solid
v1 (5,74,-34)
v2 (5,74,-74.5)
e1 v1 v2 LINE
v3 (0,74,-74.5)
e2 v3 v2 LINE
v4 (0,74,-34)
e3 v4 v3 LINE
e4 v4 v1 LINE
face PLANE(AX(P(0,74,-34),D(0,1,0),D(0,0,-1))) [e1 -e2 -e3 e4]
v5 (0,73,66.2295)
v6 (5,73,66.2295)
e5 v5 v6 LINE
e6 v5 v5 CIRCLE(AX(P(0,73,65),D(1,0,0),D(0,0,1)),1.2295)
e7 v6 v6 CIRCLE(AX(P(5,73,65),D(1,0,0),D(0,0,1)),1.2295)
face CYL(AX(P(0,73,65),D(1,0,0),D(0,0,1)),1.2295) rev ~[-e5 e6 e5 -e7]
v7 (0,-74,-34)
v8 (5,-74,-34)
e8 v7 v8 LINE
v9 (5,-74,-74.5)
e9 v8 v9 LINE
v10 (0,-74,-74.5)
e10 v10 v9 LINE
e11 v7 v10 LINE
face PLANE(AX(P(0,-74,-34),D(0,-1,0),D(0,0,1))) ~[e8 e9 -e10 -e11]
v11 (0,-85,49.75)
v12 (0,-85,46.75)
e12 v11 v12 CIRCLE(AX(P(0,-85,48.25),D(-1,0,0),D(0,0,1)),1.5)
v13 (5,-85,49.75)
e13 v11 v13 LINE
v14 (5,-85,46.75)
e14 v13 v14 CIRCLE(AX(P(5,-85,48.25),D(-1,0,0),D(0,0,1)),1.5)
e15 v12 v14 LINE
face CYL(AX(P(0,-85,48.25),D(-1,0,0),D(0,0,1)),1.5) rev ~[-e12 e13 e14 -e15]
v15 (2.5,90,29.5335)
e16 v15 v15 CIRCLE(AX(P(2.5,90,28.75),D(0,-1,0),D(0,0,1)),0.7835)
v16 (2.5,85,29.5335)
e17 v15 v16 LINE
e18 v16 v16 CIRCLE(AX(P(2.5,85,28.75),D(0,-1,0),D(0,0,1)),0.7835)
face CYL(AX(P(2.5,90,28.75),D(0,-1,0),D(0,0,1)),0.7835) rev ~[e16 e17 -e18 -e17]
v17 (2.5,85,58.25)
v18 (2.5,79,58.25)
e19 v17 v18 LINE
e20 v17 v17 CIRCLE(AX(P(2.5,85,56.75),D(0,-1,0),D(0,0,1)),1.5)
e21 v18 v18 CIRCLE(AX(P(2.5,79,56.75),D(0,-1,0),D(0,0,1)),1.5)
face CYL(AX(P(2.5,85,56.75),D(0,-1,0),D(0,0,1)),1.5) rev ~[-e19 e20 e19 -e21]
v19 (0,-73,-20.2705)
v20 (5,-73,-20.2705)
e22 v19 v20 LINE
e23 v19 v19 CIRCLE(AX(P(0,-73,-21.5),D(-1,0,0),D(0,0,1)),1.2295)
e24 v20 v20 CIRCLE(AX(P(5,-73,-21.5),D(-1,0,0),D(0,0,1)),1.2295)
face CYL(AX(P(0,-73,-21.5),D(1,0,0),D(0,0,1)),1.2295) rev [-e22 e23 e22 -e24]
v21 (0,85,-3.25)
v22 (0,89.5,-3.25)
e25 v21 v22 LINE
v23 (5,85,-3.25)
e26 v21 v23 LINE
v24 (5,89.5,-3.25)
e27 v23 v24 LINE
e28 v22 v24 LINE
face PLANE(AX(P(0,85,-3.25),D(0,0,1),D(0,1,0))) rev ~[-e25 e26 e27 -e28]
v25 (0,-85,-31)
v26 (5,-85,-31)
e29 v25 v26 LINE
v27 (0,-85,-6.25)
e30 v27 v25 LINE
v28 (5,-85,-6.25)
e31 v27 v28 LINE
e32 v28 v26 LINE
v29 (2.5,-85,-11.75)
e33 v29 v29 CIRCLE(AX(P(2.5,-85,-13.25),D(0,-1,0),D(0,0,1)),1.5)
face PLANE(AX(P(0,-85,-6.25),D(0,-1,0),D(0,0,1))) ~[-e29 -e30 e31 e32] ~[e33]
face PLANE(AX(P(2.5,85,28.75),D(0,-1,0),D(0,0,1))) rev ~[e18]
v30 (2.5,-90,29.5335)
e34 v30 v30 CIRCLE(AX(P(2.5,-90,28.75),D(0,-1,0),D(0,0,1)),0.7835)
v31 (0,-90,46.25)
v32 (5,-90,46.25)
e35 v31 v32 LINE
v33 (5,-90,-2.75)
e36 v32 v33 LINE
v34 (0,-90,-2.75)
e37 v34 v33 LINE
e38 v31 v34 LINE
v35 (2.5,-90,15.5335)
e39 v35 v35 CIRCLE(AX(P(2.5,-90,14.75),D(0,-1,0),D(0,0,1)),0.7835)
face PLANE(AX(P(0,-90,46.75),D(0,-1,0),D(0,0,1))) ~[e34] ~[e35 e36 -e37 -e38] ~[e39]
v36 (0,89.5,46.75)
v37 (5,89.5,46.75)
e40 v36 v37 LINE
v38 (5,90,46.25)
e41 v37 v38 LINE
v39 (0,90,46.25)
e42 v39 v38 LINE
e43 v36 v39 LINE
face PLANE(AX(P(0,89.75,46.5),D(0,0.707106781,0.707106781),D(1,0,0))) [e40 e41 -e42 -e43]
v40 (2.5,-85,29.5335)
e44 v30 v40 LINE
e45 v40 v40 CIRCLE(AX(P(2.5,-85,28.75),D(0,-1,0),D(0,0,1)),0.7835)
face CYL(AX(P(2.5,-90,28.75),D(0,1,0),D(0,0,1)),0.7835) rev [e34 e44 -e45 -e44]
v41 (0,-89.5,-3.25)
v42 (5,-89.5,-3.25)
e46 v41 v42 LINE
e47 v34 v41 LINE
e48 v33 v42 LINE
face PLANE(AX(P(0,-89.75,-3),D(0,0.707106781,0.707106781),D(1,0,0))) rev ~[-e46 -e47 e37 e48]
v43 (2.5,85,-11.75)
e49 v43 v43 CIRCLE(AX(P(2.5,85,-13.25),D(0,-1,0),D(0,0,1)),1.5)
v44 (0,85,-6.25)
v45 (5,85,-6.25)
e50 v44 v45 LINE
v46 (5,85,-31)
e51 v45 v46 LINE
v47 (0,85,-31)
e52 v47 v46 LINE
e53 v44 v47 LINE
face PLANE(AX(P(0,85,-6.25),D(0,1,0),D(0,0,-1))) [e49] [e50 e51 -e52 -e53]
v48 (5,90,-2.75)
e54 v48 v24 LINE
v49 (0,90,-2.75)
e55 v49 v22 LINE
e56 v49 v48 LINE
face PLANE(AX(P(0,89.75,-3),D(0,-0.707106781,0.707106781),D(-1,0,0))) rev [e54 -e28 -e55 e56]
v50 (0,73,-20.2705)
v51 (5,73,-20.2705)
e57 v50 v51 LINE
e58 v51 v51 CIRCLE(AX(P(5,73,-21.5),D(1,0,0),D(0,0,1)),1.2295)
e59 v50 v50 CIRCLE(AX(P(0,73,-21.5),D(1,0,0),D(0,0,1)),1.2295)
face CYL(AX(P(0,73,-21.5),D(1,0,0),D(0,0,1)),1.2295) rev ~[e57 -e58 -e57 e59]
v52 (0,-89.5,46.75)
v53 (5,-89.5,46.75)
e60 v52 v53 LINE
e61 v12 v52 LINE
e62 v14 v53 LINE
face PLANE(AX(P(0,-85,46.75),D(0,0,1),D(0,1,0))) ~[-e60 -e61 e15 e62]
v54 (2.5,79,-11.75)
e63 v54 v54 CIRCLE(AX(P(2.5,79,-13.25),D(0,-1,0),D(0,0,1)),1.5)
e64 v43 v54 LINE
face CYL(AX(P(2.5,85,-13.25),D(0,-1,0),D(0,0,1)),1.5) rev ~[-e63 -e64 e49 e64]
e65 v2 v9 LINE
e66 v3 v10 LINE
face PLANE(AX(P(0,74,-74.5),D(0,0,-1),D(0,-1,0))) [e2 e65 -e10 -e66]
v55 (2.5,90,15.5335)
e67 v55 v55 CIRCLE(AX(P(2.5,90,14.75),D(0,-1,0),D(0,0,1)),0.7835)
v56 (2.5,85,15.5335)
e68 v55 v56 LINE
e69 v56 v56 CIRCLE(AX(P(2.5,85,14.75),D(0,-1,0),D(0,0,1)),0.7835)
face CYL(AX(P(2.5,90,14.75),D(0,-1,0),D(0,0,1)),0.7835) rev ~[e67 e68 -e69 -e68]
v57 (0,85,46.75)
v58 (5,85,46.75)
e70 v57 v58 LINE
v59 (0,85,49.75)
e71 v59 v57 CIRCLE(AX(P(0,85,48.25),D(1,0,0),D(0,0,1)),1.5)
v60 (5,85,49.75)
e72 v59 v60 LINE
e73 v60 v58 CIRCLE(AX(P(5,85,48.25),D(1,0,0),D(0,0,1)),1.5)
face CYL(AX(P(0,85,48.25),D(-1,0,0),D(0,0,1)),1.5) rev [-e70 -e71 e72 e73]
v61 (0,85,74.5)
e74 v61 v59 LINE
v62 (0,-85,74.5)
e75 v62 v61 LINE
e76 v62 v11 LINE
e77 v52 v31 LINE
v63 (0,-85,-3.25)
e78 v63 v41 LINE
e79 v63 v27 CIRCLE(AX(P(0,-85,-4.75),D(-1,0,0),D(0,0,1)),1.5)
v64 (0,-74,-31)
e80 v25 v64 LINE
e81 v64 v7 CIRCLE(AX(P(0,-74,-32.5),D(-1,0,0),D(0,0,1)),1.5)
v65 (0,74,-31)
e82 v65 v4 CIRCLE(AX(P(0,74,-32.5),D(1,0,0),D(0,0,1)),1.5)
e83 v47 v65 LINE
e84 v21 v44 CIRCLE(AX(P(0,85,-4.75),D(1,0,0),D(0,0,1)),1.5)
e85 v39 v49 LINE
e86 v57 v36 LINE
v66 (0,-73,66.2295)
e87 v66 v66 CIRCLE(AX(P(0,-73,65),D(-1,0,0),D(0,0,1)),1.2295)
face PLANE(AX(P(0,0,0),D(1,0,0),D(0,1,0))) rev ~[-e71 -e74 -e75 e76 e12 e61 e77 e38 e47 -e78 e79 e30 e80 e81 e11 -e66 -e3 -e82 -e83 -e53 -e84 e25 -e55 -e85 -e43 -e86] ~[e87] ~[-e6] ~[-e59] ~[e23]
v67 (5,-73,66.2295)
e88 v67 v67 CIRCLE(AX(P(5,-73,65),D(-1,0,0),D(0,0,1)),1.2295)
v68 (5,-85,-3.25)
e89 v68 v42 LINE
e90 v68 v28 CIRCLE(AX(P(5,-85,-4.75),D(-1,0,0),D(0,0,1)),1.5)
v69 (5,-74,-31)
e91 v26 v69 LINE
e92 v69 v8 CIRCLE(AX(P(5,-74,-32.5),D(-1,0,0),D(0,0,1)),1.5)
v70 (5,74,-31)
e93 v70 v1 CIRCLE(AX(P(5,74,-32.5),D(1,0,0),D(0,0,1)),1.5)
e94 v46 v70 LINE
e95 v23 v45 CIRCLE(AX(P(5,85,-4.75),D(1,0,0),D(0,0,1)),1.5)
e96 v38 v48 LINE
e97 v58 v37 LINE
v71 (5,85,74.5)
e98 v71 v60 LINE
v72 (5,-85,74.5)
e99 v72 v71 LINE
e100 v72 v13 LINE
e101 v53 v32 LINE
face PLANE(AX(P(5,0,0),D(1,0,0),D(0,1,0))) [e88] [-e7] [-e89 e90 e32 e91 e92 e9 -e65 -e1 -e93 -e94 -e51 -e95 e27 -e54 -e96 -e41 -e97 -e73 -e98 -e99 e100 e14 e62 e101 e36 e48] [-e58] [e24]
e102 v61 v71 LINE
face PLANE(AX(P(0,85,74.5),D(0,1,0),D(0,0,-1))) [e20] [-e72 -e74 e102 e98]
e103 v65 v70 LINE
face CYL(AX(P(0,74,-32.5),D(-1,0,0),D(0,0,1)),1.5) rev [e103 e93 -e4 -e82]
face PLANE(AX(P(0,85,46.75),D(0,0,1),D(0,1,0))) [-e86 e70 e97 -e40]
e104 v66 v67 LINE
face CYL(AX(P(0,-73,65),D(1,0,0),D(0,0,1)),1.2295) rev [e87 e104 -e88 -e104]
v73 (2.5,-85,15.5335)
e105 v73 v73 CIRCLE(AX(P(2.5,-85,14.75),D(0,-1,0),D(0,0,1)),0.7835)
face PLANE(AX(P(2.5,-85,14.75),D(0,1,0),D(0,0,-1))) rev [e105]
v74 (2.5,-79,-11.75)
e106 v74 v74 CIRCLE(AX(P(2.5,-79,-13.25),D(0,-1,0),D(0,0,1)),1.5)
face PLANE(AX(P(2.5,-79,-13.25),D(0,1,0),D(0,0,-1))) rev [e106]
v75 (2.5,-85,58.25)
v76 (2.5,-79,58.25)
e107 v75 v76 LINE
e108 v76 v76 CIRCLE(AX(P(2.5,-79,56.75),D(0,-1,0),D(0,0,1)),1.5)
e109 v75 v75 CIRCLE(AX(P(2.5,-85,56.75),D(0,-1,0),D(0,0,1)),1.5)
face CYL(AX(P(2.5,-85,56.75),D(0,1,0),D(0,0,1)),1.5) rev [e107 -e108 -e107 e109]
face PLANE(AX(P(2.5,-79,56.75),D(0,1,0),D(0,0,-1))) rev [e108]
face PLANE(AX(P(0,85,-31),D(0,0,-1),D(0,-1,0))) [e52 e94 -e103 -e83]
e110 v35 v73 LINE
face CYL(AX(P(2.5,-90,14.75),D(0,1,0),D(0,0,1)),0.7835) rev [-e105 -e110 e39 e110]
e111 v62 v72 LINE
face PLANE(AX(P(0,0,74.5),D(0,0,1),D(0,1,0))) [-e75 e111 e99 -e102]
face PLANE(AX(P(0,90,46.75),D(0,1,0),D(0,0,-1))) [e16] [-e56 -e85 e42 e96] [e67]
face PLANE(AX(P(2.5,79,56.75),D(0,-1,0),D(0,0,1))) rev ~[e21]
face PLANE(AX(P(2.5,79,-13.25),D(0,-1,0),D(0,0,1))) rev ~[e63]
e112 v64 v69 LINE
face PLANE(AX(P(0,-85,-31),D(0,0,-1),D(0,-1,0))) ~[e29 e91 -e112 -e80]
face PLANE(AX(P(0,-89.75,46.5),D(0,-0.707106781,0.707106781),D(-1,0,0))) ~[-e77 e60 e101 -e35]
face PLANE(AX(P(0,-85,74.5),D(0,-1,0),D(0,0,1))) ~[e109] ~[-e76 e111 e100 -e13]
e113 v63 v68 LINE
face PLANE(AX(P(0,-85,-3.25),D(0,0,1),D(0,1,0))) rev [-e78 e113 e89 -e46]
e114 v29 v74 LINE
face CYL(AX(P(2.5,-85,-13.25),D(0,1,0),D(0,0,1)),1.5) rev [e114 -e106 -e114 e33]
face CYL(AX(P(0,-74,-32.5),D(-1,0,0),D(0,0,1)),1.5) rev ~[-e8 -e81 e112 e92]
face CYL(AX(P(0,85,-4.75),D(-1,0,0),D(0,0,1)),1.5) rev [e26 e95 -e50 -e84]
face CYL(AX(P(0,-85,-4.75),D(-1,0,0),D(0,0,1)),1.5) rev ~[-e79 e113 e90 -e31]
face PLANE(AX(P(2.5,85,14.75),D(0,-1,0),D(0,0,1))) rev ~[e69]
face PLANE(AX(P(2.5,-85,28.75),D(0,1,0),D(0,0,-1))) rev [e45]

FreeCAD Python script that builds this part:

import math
import FreeCAD as App
import Part
import Sketcher

V = App.Vector


def edges_at(feature, points):
    """Names of the edges that pass closest to the given points."""
    edges = feature.Shape.Edges
    near = lambda p: min(range(len(edges)), key=lambda i: edges[i].distToShape(Part.Vertex(*p))[0])
    return sorted({f"Edge{near(p) + 1}" for p in points})

doc = App.newDocument("Part")
body = doc.addObject("PartDesign::Body", "Body")

sketch1 = body.newObject("Sketcher::SketchObject", "Sketch")
sketch1.AttachmentSupport = (doc.getObject("YZ_Plane"), [""])
sketch1.MapMode = "FlatFace"
sketch1.addGeometry([
    Part.LineSegment(V(85, 74.5, 0), V(0, 74.5, 0)),
    Part.LineSegment(V(0, 74.5, 0), V(0, -74.5, 0)),
    Part.LineSegment(V(0, -74.5, 0), V(74, -74.5, 0)),
    Part.LineSegment(V(74, -74.5, 0), V(74, -34, 0)),
    Part.ArcOfCircle(Part.Circle(V(74, -32.5, 0), V(0, 0, 1), 1.5), math.radians(90), math.radians(270)),
    Part.LineSegment(V(74, -31, 0), V(85, -31, 0)),
    Part.LineSegment(V(85, -31, 0), V(85, -6.2, 0)),
    Part.ArcOfCircle(Part.Circle(V(85, -4.8, 0), V(0, 0, 1), 1.5), math.radians(90), math.radians(270)),
    Part.LineSegment(V(85, -3.2, 0), V(90, -3.2, 0)),
    Part.LineSegment(V(90, -3.2, 0), V(90, 46.8, 0)),
    Part.LineSegment(V(90, 46.8, 0), V(85, 46.8, 0)),
    Part.ArcOfCircle(Part.Circle(V(85, 48.2, 0), V(0, 0, 1), 1.5), math.radians(90), math.radians(270)),
    Part.LineSegment(V(85, 49.8, 0), V(85, 74.5, 0)),
], False)
sketch1.addConstraint([
    Sketcher.Constraint("Coincident", 0, 2, 1, 1),
    Sketcher.Constraint("Coincident", 1, 2, 2, 1),
    Sketcher.Constraint("Coincident", 2, 2, 3, 1),
    Sketcher.Constraint("Coincident", 3, 2, 4, 2),
    Sketcher.Constraint("Tangent", 4, 1, 5, 1),
    Sketcher.Constraint("Coincident", 5, 2, 6, 1),
    Sketcher.Constraint("Coincident", 6, 2, 7, 2),
    Sketcher.Constraint("Tangent", 7, 1, 8, 1),
    Sketcher.Constraint("Coincident", 8, 2, 9, 1),
    Sketcher.Constraint("Coincident", 9, 2, 10, 1),
    Sketcher.Constraint("Tangent", 10, 2, 11, 2),
    Sketcher.Constraint("Coincident", 11, 1, 12, 1),
    Sketcher.Constraint("Coincident", 12, 2, 0, 1),
    Sketcher.Constraint("Horizontal", 0),
    Sketcher.Constraint("Vertical", 1),
    Sketcher.Constraint("Horizontal", 2),
    Sketcher.Constraint("Vertical", 3),
    Sketcher.Constraint("Horizontal", 5),
    Sketcher.Constraint("Vertical", 6),
    Sketcher.Constraint("Horizontal", 8),
    Sketcher.Constraint("Vertical", 9),
    Sketcher.Constraint("Horizontal", 10),
    Sketcher.Constraint("Vertical", 12),
    Sketcher.Constraint("Equal", 4, 7),
    Sketcher.Constraint("Equal", 7, 11),
    Sketcher.Constraint("Symmetric", 0, 2, 1, 2, -1, 1),
    Sketcher.Constraint("Vertical", 7, 3, 11, 3),
    Sketcher.Constraint("Vertical", 4, 3, 2, 2),
    Sketcher.Constraint("Vertical", 11, 3, 5, 2),
    Sketcher.Constraint("Vertical", 10, 2, 11, 1),
    Sketcher.Constraint("Equal", 6, 12),
    Sketcher.Constraint("Radius", 4, 1.5),
    Sketcher.Constraint("DistanceX", 5, 1, 5, 2, 11.0),
    Sketcher.Constraint("DistanceX", 8, 1, 8, 2, 5.0),
    Sketcher.Constraint("DistanceY", 1, 2, 1, 1, 149.0),
    Sketcher.Constraint("DistanceY", 9, 1, 9, 2, 50.0),
    Sketcher.Constraint("DistanceY", 2, 2, 4, 1, 43.5),
    Sketcher.Constraint("DistanceX", 0, 2, 0, 1, 85.0),
])
pad1 = body.newObject("PartDesign::Pad", "Pad")
pad1.Profile = sketch1
pad1.Length = 5

sketch2 = body.newObject("Sketcher::SketchObject", "Sketch001")
sketch2.AttachmentSupport = (doc.getObject("XZ_Plane"), [""])
sketch2.MapMode = "FlatFace"
sketch2.AttachmentOffset = App.Placement(V(0, 0, -90), App.Rotation())
sketch2.addGeometry([
    Part.Circle(V(2.5, 14.8, 0), V(0, 0, 1), 0.8),
    Part.Circle(V(2.5, 28.8, 0), V(0, 0, 1), 0.8),
], False)
sketch2.addConstraint([
    Sketcher.Constraint("Equal", 0, 1),
    Sketcher.Constraint("Vertical", 0, 3, 1, 3),
    Sketcher.Constraint("Diameter", 0, 1.567),
    Sketcher.Constraint("DistanceY", 0, 3, 1, 3, 14.0),
    Sketcher.Constraint("DistanceX", -1, 1, 0, 3, 2.5),
    Sketcher.Constraint("DistanceY", -1, 1, 0, 3, 14.75),
])
doc.recompute()
hole = body.newObject("PartDesign::Hole", "Hole")
hole.Profile = sketch2
hole.ThreadType = "None"
hole.Diameter = 1.567
hole.DepthType = "Dimension"
hole.Depth = 5
hole.DrillPoint = "Flat"
hole.Reversed = True

sketch3 = body.newObject("Sketcher::SketchObject", "Sketch002")
sketch3.AttachmentSupport = (doc.getObject("YZ_Plane"), [""])
sketch3.MapMode = "FlatFace"
sketch3.addGeometry([
    Part.Circle(V(73, 65, 0), V(0, 0, 1), 1.2),
    Part.Circle(V(73, -21.5, 0), V(0, 0, 1), 1.2),
], False)
sketch3.addConstraint([
    Sketcher.Constraint("Equal", 0, 1),
    Sketcher.Constraint("Vertical", 0, 3, 1, 3),
    Sketcher.Constraint("Diameter", 0, 2.459),
    Sketcher.Constraint("DistanceX", -1, 1, 0, 3, 73.0),
    Sketcher.Constraint("DistanceY", -1, 1, 0, 3, 65.0),
    Sketcher.Constraint("DistanceY", 1, 3, -1, 1, 21.5),
])
doc.recompute()
hole2 = body.newObject("PartDesign::Hole", "Hole001")
hole2.Profile = sketch3
hole2.ThreadType = "None"
hole2.Diameter = 2.459
hole2.DepthType = "ThroughAll"
hole2.Reversed = True

sketch4 = body.newObject("Sketcher::SketchObject", "Sketch003")
sketch4.AttachmentSupport = (doc.getObject("XZ_Plane"), [""])
sketch4.MapMode = "FlatFace"
sketch4.AttachmentOffset = App.Placement(V(0, 0, -85), App.Rotation())
sketch4.addGeometry([
    Part.Circle(V(2.5, 56.8, 0), V(0, 0, 1), 1.5),
    Part.Circle(V(2.5, -13.2, 0), V(0, 0, 1), 1.5),
], False)
sketch4.addConstraint([
    Sketcher.Constraint("Equal", 0, 1),
    Sketcher.Constraint("Vertical", 0, 3, 1, 3),
    Sketcher.Constraint("Diameter", 0, 3.0),
    Sketcher.Constraint("DistanceY", 1, 3, 0, 3, 70.0),
    Sketcher.Constraint("DistanceX", -1, 1, 0, 3, 2.5),
    Sketcher.Constraint("DistanceY", -1, 1, 0, 3, 56.75),
])
doc.recompute()
hole3 = body.newObject("PartDesign::Hole", "Hole002")
hole3.Profile = sketch4
hole3.ThreadType = "None"
hole3.Diameter = 3
hole3.DepthType = "Dimension"
hole3.Depth = 6
hole3.DrillPoint = "Flat"
hole3.Reversed = True
doc.recompute()

chamfer = body.newObject("PartDesign::Chamfer", "Chamfer")
chamfer.Base = (hole3, edges_at(hole3, [(2.5, 90, 46.75), (2.5, 90, -3.25)]))
chamfer.Size = 0.5
doc.recompute()

mirrored = body.newObject("PartDesign::Mirrored", "Mirrored")
mirrored.TransformMode = "Transform body"
mirrored.MirrorPlane = (doc.getObject("XZ_Plane"), [""])
body.Tip = mirrored

doc.recompute()
